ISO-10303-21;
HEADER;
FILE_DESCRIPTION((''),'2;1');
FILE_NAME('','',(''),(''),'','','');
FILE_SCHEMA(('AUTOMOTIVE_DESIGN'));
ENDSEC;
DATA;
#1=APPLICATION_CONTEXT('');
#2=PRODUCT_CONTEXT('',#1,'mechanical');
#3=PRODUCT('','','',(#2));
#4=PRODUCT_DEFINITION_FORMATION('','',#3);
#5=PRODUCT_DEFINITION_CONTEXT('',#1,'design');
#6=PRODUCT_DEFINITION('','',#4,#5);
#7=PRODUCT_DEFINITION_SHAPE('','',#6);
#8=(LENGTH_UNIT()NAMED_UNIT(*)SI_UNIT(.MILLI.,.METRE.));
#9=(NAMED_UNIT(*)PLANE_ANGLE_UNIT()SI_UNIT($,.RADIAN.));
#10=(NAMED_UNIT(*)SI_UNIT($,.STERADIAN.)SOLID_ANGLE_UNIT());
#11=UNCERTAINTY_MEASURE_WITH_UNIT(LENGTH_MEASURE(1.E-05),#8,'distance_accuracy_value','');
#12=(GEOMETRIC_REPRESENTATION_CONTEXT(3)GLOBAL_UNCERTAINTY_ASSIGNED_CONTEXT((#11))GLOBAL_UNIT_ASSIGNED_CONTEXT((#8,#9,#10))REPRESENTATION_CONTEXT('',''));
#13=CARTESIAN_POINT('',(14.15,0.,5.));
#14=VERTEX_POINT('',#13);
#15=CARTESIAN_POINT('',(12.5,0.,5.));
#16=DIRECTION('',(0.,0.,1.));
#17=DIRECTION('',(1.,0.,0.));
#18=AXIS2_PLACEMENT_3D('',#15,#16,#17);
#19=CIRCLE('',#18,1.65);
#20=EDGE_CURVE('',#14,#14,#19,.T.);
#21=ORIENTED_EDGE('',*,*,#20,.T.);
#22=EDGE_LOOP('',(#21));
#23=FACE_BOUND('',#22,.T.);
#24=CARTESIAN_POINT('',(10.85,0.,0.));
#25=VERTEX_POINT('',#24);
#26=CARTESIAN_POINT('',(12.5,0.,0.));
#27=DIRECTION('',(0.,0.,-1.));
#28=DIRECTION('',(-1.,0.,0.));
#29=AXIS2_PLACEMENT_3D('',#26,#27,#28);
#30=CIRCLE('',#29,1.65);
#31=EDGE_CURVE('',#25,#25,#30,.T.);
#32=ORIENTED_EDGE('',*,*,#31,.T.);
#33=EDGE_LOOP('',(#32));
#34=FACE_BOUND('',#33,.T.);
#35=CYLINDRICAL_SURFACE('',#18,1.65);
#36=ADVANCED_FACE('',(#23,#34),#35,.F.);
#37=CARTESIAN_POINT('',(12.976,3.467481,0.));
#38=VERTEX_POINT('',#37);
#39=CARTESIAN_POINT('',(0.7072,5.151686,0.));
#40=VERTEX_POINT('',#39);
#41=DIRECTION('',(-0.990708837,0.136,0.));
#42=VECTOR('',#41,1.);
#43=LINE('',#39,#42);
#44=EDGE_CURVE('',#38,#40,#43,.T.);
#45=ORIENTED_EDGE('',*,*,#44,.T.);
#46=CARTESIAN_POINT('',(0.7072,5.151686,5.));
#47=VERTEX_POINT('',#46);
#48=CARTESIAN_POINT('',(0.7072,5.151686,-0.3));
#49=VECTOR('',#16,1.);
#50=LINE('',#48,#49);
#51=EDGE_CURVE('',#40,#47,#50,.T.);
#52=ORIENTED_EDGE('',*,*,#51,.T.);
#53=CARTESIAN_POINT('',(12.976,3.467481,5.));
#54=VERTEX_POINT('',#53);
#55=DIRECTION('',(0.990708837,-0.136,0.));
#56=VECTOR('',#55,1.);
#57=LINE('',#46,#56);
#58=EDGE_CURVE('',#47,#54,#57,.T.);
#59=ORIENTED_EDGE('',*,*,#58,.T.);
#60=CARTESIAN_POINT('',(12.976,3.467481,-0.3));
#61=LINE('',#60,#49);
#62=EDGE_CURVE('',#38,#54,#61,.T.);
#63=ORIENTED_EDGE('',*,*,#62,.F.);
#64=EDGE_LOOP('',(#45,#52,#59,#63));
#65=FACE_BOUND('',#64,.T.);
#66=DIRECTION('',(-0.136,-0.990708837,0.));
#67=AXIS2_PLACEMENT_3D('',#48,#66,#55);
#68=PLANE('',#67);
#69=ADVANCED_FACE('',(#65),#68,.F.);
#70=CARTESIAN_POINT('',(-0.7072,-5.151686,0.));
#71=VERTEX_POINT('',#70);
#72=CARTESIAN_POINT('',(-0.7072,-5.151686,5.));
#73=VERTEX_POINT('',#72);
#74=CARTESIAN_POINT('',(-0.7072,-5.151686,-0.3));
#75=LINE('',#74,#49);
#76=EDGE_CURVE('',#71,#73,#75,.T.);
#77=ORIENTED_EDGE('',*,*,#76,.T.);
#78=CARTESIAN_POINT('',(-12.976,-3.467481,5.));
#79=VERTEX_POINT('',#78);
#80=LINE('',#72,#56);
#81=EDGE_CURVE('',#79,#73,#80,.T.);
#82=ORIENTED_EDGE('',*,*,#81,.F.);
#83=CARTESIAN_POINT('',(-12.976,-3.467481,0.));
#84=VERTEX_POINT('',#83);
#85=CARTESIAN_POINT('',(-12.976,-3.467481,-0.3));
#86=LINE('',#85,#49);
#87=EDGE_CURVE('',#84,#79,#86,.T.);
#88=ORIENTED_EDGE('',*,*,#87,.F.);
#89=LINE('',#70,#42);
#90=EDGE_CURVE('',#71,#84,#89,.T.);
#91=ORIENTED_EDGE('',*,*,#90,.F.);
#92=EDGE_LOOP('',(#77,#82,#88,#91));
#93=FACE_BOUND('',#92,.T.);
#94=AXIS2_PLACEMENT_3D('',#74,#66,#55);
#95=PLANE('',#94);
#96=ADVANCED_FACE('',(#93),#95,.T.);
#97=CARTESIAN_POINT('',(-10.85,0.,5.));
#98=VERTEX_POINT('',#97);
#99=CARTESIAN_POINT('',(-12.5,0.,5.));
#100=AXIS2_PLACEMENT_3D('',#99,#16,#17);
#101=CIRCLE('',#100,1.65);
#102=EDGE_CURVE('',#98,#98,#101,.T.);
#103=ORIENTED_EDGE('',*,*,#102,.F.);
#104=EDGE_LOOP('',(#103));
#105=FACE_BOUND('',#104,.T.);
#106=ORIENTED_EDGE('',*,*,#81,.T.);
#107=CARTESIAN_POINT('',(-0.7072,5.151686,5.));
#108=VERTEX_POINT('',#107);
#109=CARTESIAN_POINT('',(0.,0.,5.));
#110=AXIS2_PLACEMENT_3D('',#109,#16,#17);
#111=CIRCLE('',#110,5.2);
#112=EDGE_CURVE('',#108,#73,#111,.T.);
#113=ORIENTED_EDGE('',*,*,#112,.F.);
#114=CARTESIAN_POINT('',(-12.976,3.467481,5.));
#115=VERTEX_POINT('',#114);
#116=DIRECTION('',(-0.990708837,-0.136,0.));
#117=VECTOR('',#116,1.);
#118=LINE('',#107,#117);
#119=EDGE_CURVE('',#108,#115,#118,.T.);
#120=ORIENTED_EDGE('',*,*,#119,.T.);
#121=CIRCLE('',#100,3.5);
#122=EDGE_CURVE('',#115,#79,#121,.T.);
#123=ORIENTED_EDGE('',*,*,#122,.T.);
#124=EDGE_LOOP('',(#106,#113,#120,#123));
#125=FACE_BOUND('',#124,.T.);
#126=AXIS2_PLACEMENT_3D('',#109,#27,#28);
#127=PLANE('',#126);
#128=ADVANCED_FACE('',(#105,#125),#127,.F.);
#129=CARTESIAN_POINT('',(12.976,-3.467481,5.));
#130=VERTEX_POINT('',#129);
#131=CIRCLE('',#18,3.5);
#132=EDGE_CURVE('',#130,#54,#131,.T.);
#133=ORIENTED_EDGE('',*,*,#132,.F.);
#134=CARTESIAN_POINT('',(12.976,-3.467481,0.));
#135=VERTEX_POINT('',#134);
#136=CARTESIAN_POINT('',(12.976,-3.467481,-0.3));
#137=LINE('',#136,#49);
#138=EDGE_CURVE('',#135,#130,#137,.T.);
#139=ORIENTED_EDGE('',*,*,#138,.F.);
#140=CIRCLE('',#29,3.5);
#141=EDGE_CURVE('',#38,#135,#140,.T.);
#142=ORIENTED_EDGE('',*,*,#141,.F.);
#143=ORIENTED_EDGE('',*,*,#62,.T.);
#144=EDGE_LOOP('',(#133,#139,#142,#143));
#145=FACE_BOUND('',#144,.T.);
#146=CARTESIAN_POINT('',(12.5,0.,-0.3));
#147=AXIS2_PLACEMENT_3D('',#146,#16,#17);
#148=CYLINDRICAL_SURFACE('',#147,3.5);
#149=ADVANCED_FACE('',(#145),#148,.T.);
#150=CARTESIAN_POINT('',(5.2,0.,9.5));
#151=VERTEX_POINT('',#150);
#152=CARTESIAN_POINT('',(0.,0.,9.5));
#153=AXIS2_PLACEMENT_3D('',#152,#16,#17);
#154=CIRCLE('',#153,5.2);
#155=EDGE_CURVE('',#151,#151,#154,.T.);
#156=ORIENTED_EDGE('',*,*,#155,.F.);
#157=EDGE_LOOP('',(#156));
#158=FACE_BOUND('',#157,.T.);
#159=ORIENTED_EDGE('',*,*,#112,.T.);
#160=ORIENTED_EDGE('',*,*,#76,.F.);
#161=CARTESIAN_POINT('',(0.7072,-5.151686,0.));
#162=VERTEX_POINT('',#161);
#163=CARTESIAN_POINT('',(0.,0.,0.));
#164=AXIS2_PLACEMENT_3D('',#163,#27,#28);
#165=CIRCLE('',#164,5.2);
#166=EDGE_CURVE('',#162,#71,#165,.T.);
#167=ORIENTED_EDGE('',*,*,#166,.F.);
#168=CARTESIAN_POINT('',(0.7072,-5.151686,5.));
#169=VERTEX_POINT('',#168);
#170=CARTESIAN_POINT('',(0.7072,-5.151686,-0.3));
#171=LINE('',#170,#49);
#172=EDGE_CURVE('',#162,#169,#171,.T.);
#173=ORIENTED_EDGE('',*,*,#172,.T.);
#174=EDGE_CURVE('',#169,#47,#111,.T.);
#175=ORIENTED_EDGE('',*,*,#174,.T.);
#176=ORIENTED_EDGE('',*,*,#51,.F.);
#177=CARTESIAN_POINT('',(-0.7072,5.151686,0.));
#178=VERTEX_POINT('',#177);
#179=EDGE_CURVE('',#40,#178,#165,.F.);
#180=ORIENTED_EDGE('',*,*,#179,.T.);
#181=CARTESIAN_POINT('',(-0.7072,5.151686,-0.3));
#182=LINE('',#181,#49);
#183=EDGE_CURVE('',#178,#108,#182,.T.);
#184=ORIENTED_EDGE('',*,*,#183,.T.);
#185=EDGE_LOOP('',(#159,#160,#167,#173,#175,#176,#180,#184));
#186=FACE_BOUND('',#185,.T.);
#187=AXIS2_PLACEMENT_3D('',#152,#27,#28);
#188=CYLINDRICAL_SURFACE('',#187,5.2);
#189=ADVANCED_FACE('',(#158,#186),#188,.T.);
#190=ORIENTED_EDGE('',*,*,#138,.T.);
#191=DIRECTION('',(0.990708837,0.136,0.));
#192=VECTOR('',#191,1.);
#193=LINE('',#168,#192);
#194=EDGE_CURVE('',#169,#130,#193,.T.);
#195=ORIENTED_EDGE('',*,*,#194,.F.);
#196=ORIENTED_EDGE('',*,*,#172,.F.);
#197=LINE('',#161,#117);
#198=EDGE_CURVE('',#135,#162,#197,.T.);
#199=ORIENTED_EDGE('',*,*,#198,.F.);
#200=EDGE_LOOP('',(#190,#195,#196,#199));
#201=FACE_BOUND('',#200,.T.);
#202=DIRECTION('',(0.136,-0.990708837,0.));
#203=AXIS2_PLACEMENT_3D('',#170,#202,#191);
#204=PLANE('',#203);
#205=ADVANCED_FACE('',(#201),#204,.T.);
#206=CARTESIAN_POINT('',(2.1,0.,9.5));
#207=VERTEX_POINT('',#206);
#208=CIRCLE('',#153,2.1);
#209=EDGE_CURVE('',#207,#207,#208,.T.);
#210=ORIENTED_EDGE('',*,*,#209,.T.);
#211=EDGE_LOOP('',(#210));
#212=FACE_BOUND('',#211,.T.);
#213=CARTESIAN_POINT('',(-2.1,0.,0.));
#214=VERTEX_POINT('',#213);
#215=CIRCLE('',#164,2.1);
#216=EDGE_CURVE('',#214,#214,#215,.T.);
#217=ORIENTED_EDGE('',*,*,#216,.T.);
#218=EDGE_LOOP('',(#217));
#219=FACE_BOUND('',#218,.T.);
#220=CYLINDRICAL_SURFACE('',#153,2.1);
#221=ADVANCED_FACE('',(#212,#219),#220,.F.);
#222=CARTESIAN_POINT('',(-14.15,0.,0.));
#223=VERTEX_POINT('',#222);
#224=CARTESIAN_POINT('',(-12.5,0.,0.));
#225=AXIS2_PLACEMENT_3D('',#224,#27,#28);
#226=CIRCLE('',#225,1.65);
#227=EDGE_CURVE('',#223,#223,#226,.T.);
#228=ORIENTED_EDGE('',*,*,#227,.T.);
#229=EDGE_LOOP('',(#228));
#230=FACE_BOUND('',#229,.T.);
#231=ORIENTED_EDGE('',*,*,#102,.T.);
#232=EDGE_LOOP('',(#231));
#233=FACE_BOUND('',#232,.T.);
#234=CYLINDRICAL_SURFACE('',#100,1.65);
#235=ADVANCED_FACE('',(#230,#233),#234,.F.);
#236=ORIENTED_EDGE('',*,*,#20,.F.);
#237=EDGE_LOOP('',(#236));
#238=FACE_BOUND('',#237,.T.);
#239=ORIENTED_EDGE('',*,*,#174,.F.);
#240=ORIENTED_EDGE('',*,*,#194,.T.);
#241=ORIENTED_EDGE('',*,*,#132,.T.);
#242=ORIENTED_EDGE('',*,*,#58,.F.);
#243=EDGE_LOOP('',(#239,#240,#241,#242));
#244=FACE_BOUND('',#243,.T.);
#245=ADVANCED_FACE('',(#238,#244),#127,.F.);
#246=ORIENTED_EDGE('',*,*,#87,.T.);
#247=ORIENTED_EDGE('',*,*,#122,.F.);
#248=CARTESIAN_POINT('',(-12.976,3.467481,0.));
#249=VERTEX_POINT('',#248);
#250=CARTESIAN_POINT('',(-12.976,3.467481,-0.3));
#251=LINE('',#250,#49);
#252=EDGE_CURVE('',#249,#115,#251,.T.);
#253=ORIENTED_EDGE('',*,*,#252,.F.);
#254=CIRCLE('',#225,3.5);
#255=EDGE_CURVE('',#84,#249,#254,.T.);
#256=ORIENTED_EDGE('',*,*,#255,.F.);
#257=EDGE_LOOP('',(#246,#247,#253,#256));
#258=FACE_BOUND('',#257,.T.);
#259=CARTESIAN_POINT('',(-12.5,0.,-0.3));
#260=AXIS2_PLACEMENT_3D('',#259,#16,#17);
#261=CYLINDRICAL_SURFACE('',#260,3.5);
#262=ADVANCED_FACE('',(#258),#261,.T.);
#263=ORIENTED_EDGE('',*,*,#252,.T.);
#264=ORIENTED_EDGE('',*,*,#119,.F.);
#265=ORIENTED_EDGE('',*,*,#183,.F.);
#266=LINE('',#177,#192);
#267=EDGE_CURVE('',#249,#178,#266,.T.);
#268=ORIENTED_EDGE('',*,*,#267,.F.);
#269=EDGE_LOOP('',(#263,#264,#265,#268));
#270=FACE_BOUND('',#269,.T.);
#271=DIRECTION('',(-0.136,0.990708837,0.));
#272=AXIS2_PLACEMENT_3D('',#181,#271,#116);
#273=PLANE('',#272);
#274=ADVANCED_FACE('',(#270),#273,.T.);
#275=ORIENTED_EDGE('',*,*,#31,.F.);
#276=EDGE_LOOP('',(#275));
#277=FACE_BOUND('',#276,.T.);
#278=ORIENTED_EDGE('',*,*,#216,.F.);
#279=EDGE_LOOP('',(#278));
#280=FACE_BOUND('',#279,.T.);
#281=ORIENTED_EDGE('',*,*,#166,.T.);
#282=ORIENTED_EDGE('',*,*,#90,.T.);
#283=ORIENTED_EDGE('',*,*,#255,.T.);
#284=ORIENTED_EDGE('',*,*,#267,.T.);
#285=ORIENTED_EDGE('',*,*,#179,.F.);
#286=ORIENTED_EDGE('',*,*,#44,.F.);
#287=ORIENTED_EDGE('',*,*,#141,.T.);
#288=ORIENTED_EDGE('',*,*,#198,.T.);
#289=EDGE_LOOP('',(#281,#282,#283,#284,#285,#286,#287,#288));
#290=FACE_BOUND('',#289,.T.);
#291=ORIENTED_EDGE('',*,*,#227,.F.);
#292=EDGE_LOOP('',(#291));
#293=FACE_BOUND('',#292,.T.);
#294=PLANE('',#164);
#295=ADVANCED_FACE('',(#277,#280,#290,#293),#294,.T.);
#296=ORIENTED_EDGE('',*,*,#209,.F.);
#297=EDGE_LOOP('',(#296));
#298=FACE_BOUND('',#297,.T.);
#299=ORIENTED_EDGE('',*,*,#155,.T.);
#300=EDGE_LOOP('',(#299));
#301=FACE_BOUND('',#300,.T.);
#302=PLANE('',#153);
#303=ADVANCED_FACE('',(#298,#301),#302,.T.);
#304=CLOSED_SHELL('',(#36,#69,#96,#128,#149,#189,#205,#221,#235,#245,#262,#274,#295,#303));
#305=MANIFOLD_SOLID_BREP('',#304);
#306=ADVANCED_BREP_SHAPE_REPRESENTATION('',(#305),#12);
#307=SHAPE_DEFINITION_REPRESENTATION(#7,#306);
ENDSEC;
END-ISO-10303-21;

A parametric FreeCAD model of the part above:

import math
import FreeCAD as App
import Part
import Sketcher

V = App.Vector
Q = App.Units.Quantity

doc = App.newDocument("Part")
body = doc.addObject("PartDesign::Body", "Body")

# Sketch on XY plane
sketch1 = doc.addObject("Sketcher::SketchObject", "Sketch")
body.addObject(sketch1)
sketch1.AttachmentSupport = (doc.XY_Plane, [""])
sketch1.MapMode = "FlatFace"
sketch1.addGeometry(Part.LineSegment(V(-16, 5.2, 0), V(-16, -5.2, 0)), False)
sketch1.addGeometry(Part.LineSegment(V(-16, -5.2, 0), V(16, -5.2, 0)), False)
sketch1.addGeometry(Part.LineSegment(V(16, -5.2, 0), V(16, 5.2, 0)), False)
sketch1.addGeometry(Part.LineSegment(V(16, 5.2, 0), V(-16, 5.2, 0)), False)
sketch1.addGeometry(Part.Circle(V(-12.5, 0, 0), V(0, 0, 1), 0.5), False)
sketch1.addGeometry(Part.Circle(V(0, 0, 0), V(0, 0, 1), 0.5), False)
sketch1.addGeometry(Part.Circle(V(12.5, 0, 0), V(0, 0, 1), 0.5), False)
sketch1.addConstraint(Sketcher.Constraint("Coincident", 0, 2, 1, 1))
sketch1.addConstraint(Sketcher.Constraint("Coincident", 1, 2, 2, 1))
sketch1.addConstraint(Sketcher.Constraint("Coincident", 2, 2, 3, 1))
sketch1.addConstraint(Sketcher.Constraint("Coincident", 3, 2, 0, 1))
sketch1.addConstraint(Sketcher.Constraint("Vertical", 0))
sketch1.addConstraint(Sketcher.Constraint("Horizontal", 1))
sketch1.addConstraint(Sketcher.Constraint("Vertical", 2))
sketch1.addConstraint(Sketcher.Constraint("Horizontal", 3))
sketch1.addConstraint(Sketcher.Constraint("Coincident", 5, 3, -1, 1))
sketch1.addConstraint(Sketcher.Constraint("Equal", 4, 5))
sketch1.addConstraint(Sketcher.Constraint("Equal", 5, 6))
sketch1.addConstraint(Sketcher.Constraint("Symmetric", 4, 3, 6, 3, -1, 1))
sketch1.addConstraint(Sketcher.Constraint("Symmetric", 0, 2, 2, 2, -1, 1))
sketch1.addConstraint(Sketcher.Constraint("PointOnObject", 4, 3, -1))
sketch1.addConstraint(Sketcher.Constraint("Diameter", 4, Q("1 mm")))
sketch1.addConstraint(Sketcher.Constraint("DistanceX", 1, 1, 1, 2, Q("32 mm")))
sketch1.addConstraint(Sketcher.Constraint("DistanceY", 0, 2, 0, 1, Q("10.4 mm")))
sketch1.addConstraint(Sketcher.Constraint("DistanceX", 4, 3, 6, 3, Q("25 mm")))
pad1 = doc.addObject("PartDesign::Pad", "Pad")
body.addObject(pad1)
pad1.Profile = sketch1
pad1.Length = 5

# Sketch on XY plane
sketch2 = doc.addObject("Sketcher::SketchObject", "Sketch001")
body.addObject(sketch2)
sketch2.AttachmentSupport = (doc.XY_Plane, [""])
sketch2.MapMode = "FlatFace"
sketch2.AttachmentOffset = App.Placement(V(0, 0, 5), App.Rotation())
sketch2.addGeometry(Part.Circle(V(0, 0, 0), V(0, 0, 1), 5.2), False)
sketch2.addGeometry(Part.Circle(V(0, 0, 0), V(0, 0, 1), 0.5), False)
sketch2.addConstraint(Sketcher.Constraint("Coincident", 0, 3, -1, 1))
sketch2.addConstraint(Sketcher.Constraint("Coincident", 1, 3, -1, 1))
sketch2.addConstraint(Sketcher.Constraint("Diameter", 1, Q("1 mm")))
sketch2.addConstraint(Sketcher.Constraint("Diameter", 0, Q("10.4 mm")))
pad2 = doc.addObject("PartDesign::Pad", "Pad001")
body.addObject(pad2)
pad2.Profile = sketch2
pad2.Length = 4.5

# Sketch on XY plane
sketch3 = doc.addObject("Sketcher::SketchObject", "Sketch002")
body.addObject(sketch3)
sketch3.AttachmentSupport = (doc.XY_Plane, [""])
sketch3.MapMode = "FlatFace"
sketch3.AttachmentOffset = App.Placement(V(0, 0, -0.3), App.Rotation())
sketch3.addGeometry(Part.LineSegment(V(-13, 3.5, 0), V(-0.7, 5.2, 0)), False)
sketch3.addGeometry(Part.ArcOfCircle(Part.Circle(V(0, 0, 0), V(0, 0, 1), 5.2), math.radians(90), math.radians(97.82)), False)
sketch3.addGeometry(Part.LineSegment(V(0, 5.2, 0), V(-16, 5.2, 0)), False)
sketch3.addGeometry(Part.LineSegment(V(-16, 5.2, 0), V(-16, 0, 0)), False)
sketch3.addGeometry(Part.ArcOfCircle(Part.Circle(V(-12.5, 0, 0), V(0, 0, 1), 3.5), math.radians(98), math.radians(180)), False)
sketch3.addGeometry(Part.ArcOfCircle(Part.Circle(V(0, 0, 0), V(0, 0, 1), 5.2), math.radians(-97.82), math.radians(-90)), False)
sketch3.addGeometry(Part.LineSegment(V(-0.7, -5.2, 0), V(-13, -3.5, 0)), False)
sketch3.addGeometry(Part.ArcOfCircle(Part.Circle(V(-12.5, 0, 0), V(0, 0, 1), 3.5), math.radians(180), math.radians(262)), False)
sketch3.addGeometry(Part.LineSegment(V(-16, 0, 0), V(-16, -5.2, 0)), False)
sketch3.addGeometry(Part.LineSegment(V(-16, -5.2, 0), V(0, -5.2, 0)), False)
sketch3.addGeometry(Part.ArcOfCircle(Part.Circle(V(0, 0, 0), V(0, 0, 1), 5.2), math.radians(-90), math.radians(-82.18)), False)
sketch3.addGeometry(Part.LineSegment(V(0, -5.2, 0), V(16, -5.2, 0)), False)
sketch3.addGeometry(Part.LineSegment(V(16, -5.2, 0), V(16, 0, 0)), False)
sketch3.addGeometry(Part.ArcOfCircle(Part.Circle(V(12.5, 0, 0), V(0, 0, 1), 3.5), math.radians(-82), math.radians(0)), False)
sketch3.addGeometry(Part.LineSegment(V(13, -3.5, 0), V(0.7, -5.2, 0)), False)
sketch3.addGeometry(Part.LineSegment(V(16, 5.2, 0), V(0, 5.2, 0)), False)
sketch3.addGeometry(Part.ArcOfCircle(Part.Circle(V(0, 0, 0), V(0, 0, 1), 5.2), math.radians(82.18), math.radians(90)), False)
sketch3.addGeometry(Part.LineSegment(V(0.7, 5.2, 0), V(13, 3.5, 0)), False)
sketch3.addGeometry(Part.ArcOfCircle(Part.Circle(V(12.5, 0, 0), V(0, 0, 1), 3.5), math.radians(0), math.radians(82)), False)
sketch3.addGeometry(Part.LineSegment(V(16, 0, 0), V(16, 5.2, 0)), False)
sketch3.addConstraint(Sketcher.Constraint("Tangent", 0, 2, 1, 2))
sketch3.addConstraint(Sketcher.Constraint("Tangent", 1, 1, 2, 1))
sketch3.addConstraint(Sketcher.Constraint("Coincident", 2, 2, 3, 1))
sketch3.addConstraint(Sketcher.Constraint("Tangent", 3, 2, 4, 2))
sketch3.addConstraint(Sketcher.Constraint("Tangent", 4, 1, 0, 1))
sketch3.addConstraint(Sketcher.Constraint("Tangent", 5, 1, 6, 1))
sketch3.addConstraint(Sketcher.Constraint("Tangent", 6, 2, 7, 2))
sketch3.addConstraint(Sketcher.Constraint("Tangent", 7, 1, 8, 1))
sketch3.addConstraint(Sketcher.Constraint("Coincident", 8, 2, 9, 1))
sketch3.addConstraint(Sketcher.Constraint("Tangent", 9, 2, 5, 2))
sketch3.addConstraint(Sketcher.Constraint("Tangent", 10, 1, 11, 1))
sketch3.addConstraint(Sketcher.Constraint("Coincident", 11, 2, 12, 1))
sketch3.addConstraint(Sketcher.Constraint("Tangent", 12, 2, 13, 2))
sketch3.addConstraint(Sketcher.Constraint("Tangent", 13, 1, 14, 1))
sketch3.addConstraint(Sketcher.Constraint("Tangent", 14, 2, 10, 2))
sketch3.addConstraint(Sketcher.Constraint("Tangent", 15, 2, 16, 2))
sketch3.addConstraint(Sketcher.Constraint("Tangent", 16, 1, 17, 1))
sketch3.addConstraint(Sketcher.Constraint("Tangent", 17, 2, 18, 2))
sketch3.addConstraint(Sketcher.Constraint("Tangent", 18, 1, 19, 1))
sketch3.addConstraint(Sketcher.Constraint("Coincident", 19, 2, 15, 1))
sketch3.addConstraint(Sketcher.Constraint("Horizontal", 2))
sketch3.addConstraint(Sketcher.Constraint("Vertical", 3))
sketch3.addConstraint(Sketcher.Constraint("Vertical", 8))
sketch3.addConstraint(Sketcher.Constraint("Horizontal", 9))
sketch3.addConstraint(Sketcher.Constraint("Horizontal", 11))
sketch3.addConstraint(Sketcher.Constraint("Vertical", 12))
sketch3.addConstraint(Sketcher.Constraint("Horizontal", 15))
sketch3.addConstraint(Sketcher.Constraint("Vertical", 19))
sketch3.addConstraint(Sketcher.Constraint("Coincident", 1, 3, -1, 1))
sketch3.addConstraint(Sketcher.Constraint("Coincident", 5, 3, -1, 1))
sketch3.addConstraint(Sketcher.Constraint("Coincident", 10, 3, -1, 1))
sketch3.addConstraint(Sketcher.Constraint("Coincident", 16, 3, -1, 1))
sketch3.addConstraint(Sketcher.Constraint("Coincident", 7, 3, 4, 3))
sketch3.addConstraint(Sketcher.Constraint("Coincident", 18, 3, 13, 3))
sketch3.addConstraint(Sketcher.Constraint("Equal", 1, 5))
sketch3.addConstraint(Sketcher.Constraint("Equal", 4, 7))
sketch3.addConstraint(Sketcher.Constraint("Equal", 5, 10))
sketch3.addConstraint(Sketcher.Constraint("Equal", 7, 13))
sketch3.addConstraint(Sketcher.Constraint("Equal", 10, 16))
sketch3.addConstraint(Sketcher.Constraint("Equal", 13, 18))
sketch3.addConstraint(Sketcher.Constraint("Symmetric", 4, 3, 13, 3, -1, 1))
sketch3.addConstraint(Sketcher.Constraint("PointOnObject", 4, 3, -1))
sketch3.addConstraint(Sketcher.Constraint("Radius", 1, Q("5.2 mm")))
sketch3.addConstraint(Sketcher.Constraint("Radius", 4, Q("3.5 mm")))
sketch3.addConstraint(Sketcher.Constraint("DistanceX", 2, 2, 2, 1, Q("16 mm")))
pocket1 = doc.addObject("PartDesign::Pocket", "Pocket")
body.addObject(pocket1)
pocket1.Profile = sketch3
pocket1.Length = 5.3
pocket1.Reversed = True

# Sketch on XY plane
sketch4 = doc.addObject("Sketcher::SketchObject", "Sketch003")
body.addObject(sketch4)
sketch4.AttachmentSupport = (doc.XY_Plane, [""])
sketch4.MapMode = "FlatFace"
sketch4.AttachmentOffset = App.Placement(V(0, 0, 5), App.Rotation())
sketch4.addGeometry(Part.Circle(V(-12.5, 0, 0), V(0, 0, 1), 1.6), False)
sketch4.addGeometry(Part.Circle(V(12.5, 0, 0), V(0, 0, 1), 1.6), False)
sketch4.addConstraint(Sketcher.Constraint("Equal", 0, 1))
sketch4.addConstraint(Sketcher.Constraint("Symmetric", 0, 3, 1, 3, -1, 1))
sketch4.addConstraint(Sketcher.Constraint("PointOnObject", 0, 3, -1))
sketch4.addConstraint(Sketcher.Constraint("Diameter", 0, Q("3.3 mm")))
sketch4.addConstraint(Sketcher.Constraint("DistanceX", 0, 3, 1, 3, Q("25 mm")))
doc.recompute()
hole = doc.addObject("PartDesign::Hole", "Hole")
body.addObject(hole)
hole.Profile = sketch4
hole.ThreadType = "None"
hole.Diameter = 3.3
hole.DepthType = "Dimension"
hole.Depth = 10.1
hole.DrillPoint = "Angled"
hole.DrillPointAngle = 118

# Sketch on XY plane
sketch5 = doc.addObject("Sketcher::SketchObject", "Sketch004")
body.addObject(sketch5)
sketch5.AttachmentSupport = (doc.XY_Plane, [""])
sketch5.MapMode = "FlatFace"
sketch5.AttachmentOffset = App.Placement(V(0, 0, 9.5), App.Rotation())
sketch5.addGeometry(Part.Circle(V(0, 0, 0), V(0, 0, 1), 2.1), False)
sketch5.addConstraint(Sketcher.Constraint("Coincident", 0, 3, -1, 1))
sketch5.addConstraint(Sketcher.Constraint("Diameter", 0, Q("4.2 mm")))
doc.recompute()
hole2 = doc.addObject("PartDesign::Hole", "Hole001")
body.addObject(hole2)
hole2.Profile = sketch5
hole2.ThreadType = "None"
hole2.Diameter = 4.2
hole2.DepthType = "Dimension"
hole2.Depth = 22.4
hole2.DrillPoint = "Angled"
hole2.DrillPointAngle = 118

doc.recompute()
